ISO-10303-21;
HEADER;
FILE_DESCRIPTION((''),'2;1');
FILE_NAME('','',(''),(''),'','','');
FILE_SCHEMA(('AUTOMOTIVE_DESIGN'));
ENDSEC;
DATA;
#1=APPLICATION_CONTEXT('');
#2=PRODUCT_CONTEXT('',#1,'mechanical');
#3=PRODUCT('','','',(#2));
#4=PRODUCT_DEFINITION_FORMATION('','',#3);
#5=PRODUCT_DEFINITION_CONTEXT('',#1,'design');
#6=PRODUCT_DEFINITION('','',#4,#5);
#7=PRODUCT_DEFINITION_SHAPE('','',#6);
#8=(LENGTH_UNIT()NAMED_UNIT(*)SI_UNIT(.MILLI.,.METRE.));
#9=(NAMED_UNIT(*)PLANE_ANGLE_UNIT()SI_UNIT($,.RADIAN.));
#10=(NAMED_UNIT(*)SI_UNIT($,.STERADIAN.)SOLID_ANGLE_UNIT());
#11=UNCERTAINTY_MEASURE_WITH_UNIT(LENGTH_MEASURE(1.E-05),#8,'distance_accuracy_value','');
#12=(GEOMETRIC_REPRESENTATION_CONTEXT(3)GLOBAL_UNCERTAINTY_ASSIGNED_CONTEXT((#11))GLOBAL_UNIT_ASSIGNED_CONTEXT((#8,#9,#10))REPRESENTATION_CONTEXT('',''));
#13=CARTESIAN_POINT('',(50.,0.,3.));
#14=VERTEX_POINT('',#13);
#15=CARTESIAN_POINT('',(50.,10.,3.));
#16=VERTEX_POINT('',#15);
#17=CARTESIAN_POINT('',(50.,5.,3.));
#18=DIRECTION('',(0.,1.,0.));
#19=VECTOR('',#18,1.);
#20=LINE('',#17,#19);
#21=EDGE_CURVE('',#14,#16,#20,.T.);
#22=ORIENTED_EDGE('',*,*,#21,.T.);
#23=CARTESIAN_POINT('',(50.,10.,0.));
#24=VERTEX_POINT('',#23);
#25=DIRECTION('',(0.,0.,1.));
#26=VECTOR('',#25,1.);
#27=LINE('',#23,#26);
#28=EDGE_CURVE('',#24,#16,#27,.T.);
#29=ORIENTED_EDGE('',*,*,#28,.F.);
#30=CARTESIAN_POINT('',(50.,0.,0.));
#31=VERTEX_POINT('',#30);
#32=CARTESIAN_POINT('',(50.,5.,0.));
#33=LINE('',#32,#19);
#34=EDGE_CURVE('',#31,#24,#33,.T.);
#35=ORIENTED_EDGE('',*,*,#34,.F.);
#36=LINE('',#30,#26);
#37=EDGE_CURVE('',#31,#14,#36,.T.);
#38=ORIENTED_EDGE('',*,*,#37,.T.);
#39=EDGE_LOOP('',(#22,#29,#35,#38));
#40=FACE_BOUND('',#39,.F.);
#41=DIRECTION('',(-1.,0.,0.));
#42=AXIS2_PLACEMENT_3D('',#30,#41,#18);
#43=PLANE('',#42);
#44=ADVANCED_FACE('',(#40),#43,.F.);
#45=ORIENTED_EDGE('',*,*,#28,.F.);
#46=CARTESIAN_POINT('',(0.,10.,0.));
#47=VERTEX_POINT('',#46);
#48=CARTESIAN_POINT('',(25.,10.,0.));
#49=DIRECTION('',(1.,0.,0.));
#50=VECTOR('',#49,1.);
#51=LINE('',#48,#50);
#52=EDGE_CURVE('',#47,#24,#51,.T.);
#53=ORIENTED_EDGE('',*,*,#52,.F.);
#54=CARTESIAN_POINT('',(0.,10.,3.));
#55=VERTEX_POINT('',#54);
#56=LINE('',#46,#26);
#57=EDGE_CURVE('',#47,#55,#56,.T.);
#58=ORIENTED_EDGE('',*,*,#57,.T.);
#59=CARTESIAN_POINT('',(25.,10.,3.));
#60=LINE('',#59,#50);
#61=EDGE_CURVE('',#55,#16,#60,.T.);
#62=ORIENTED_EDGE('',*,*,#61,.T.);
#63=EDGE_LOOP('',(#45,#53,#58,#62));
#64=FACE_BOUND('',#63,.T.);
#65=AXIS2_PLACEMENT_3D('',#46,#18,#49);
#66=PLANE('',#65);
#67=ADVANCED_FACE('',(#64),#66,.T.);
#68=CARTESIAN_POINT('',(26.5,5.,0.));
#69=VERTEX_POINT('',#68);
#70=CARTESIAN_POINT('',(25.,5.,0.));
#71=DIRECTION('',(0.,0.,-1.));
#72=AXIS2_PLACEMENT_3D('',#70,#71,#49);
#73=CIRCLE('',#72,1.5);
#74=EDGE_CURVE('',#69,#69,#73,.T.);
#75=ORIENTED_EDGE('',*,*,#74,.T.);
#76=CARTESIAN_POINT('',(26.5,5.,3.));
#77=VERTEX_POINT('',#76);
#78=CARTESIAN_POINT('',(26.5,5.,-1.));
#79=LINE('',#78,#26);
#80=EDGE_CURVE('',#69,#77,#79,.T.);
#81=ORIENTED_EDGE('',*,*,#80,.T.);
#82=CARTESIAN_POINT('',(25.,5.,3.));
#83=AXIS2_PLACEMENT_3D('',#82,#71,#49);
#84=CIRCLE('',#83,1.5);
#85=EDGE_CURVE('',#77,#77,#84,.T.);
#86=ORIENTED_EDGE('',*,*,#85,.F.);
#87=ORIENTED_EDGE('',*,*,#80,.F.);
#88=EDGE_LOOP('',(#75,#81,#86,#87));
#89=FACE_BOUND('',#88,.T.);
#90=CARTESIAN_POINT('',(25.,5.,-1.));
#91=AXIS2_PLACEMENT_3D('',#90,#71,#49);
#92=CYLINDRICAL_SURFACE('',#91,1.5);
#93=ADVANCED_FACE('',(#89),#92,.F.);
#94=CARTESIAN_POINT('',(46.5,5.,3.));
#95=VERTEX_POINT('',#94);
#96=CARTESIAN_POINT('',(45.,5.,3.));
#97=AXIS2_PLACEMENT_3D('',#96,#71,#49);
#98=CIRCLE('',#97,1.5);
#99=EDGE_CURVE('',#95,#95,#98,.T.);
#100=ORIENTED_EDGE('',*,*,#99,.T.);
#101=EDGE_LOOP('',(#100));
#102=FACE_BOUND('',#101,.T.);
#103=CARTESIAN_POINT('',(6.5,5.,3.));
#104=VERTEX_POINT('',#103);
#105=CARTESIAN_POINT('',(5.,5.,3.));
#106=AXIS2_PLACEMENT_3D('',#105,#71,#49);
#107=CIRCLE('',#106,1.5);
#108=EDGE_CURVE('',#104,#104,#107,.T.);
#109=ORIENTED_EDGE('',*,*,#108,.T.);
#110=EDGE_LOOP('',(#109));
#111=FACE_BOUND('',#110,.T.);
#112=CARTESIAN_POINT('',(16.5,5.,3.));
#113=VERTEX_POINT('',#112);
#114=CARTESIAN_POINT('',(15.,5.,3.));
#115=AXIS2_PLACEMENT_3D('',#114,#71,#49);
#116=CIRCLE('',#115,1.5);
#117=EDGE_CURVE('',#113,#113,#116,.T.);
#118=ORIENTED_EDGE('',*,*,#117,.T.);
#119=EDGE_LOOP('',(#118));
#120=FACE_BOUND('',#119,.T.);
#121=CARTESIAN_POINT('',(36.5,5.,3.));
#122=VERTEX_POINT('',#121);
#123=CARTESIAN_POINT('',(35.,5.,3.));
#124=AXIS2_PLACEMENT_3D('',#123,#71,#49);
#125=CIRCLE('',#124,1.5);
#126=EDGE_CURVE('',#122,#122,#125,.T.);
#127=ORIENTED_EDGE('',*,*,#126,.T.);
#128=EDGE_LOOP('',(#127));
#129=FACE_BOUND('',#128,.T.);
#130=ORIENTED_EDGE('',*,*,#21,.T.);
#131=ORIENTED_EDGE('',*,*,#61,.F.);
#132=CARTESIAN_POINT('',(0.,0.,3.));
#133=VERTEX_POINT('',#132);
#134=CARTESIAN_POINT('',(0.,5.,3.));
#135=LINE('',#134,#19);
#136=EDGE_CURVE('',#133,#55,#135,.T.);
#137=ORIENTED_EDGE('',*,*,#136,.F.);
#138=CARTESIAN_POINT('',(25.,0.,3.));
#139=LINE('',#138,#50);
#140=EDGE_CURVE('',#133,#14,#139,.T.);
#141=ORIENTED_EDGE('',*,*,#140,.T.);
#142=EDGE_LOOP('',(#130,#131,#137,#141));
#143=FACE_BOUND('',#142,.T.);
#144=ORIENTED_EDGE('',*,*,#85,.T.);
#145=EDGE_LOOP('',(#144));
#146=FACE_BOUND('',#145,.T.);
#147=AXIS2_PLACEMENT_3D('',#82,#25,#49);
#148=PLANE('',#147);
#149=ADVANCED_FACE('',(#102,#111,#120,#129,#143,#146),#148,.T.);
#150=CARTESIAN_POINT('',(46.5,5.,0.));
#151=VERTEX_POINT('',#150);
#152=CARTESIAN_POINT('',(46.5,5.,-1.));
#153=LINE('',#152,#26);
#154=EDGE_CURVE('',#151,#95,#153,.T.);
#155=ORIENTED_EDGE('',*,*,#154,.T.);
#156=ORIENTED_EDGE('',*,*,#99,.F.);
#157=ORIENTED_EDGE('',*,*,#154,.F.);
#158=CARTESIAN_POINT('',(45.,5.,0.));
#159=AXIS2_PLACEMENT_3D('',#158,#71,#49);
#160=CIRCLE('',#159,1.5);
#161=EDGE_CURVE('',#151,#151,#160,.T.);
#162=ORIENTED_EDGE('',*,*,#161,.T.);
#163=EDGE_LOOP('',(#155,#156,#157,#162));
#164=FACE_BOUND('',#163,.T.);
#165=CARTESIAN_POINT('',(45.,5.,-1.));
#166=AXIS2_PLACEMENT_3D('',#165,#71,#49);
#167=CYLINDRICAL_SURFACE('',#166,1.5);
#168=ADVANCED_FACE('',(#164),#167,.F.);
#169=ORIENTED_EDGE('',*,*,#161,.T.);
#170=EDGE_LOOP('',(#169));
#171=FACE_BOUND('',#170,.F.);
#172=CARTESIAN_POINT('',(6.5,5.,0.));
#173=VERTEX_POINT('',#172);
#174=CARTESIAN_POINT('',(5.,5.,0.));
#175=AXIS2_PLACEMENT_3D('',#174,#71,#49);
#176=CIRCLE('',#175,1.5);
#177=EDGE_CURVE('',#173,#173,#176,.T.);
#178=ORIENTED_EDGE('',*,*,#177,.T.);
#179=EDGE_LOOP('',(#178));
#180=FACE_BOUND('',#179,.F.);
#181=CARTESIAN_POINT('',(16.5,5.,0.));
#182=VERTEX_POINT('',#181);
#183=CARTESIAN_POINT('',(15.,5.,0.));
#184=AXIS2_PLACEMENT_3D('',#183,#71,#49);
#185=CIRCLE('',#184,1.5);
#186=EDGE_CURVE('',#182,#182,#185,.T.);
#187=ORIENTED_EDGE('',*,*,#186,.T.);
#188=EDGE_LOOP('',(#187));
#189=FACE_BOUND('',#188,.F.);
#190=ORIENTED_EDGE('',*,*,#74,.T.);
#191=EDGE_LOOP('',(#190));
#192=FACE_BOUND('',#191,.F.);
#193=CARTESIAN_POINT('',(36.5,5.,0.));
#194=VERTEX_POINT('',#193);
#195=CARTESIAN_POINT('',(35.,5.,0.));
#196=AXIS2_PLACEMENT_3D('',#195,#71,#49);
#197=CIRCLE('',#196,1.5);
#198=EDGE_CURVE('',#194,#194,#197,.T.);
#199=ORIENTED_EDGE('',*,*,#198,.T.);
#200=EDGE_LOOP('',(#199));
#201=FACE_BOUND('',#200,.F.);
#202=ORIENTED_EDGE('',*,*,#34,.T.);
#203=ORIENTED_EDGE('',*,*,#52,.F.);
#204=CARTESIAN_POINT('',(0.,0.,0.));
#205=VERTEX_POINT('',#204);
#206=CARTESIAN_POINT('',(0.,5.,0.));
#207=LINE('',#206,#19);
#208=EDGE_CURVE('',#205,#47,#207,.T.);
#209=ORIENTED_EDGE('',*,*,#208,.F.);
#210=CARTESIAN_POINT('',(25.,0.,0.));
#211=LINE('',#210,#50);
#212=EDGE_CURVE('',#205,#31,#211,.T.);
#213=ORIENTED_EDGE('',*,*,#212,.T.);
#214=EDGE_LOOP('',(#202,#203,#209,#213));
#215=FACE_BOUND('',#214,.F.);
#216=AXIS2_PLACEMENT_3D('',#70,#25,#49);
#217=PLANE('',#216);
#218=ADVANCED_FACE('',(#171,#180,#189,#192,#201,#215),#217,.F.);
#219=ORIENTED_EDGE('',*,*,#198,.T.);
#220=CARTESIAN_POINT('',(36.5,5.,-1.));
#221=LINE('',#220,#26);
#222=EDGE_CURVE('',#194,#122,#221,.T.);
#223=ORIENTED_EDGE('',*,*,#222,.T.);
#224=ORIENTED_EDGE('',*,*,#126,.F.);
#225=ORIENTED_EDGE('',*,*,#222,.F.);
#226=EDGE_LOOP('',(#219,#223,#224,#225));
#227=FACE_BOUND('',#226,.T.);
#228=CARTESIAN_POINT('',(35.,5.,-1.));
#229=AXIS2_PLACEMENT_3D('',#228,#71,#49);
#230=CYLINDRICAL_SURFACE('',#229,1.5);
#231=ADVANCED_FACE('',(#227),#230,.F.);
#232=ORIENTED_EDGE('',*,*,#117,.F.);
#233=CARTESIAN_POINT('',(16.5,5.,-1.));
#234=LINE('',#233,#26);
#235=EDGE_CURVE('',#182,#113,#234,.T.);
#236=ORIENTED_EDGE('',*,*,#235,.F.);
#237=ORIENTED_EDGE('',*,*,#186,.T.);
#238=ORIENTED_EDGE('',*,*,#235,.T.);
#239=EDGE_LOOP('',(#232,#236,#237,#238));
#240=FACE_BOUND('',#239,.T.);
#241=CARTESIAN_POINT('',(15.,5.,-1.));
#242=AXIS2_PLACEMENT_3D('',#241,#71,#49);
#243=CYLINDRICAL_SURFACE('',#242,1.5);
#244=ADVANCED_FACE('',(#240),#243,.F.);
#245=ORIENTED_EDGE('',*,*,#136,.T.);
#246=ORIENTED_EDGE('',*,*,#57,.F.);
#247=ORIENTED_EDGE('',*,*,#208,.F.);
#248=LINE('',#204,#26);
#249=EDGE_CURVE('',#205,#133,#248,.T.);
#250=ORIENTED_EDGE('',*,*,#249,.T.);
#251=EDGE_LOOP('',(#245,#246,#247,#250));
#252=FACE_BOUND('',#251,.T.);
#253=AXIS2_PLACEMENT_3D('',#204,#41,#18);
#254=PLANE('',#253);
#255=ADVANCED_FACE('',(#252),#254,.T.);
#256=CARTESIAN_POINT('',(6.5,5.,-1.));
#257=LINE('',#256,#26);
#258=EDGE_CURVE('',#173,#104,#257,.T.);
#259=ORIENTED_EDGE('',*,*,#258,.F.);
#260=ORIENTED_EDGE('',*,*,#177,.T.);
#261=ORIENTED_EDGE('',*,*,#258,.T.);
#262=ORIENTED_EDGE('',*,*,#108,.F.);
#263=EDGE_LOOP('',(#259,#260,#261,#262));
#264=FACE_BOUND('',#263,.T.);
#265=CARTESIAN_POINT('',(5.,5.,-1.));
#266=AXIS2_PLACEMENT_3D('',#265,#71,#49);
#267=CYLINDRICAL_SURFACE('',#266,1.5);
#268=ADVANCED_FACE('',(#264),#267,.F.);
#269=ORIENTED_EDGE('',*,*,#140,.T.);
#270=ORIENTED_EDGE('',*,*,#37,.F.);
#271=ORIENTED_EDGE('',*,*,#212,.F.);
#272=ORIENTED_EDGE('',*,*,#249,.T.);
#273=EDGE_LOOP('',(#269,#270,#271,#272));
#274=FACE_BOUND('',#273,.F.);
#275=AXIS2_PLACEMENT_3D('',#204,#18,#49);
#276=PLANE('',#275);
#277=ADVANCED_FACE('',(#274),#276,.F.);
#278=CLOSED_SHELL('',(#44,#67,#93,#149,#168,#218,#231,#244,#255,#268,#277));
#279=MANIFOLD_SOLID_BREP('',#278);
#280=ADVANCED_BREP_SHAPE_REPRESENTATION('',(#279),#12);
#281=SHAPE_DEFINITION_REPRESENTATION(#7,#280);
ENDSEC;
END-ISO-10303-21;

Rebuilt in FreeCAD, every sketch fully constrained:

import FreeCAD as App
import Part
import Sketcher

doc = App.newDocument("Part")
body = doc.addObject("PartDesign::Body", "Body")

# Sketch on XY plane
sketch1 = body.newObject("Sketcher::SketchObject", "Sketch")
sketch1.AttachmentSupport = (doc.getObject("XY_Plane"), [""])
sketch1.MapMode = "FlatFace"
sketch1.AttachmentOffset = App.Placement(App.Vector(0, 0, -1), App.Rotation())
sketch1.addGeometry(Part.Circle(App.Vector(45, 5, 0), App.Vector(0, 0, 1), 1.5), False)
sketch1.addConstraint([
    Sketcher.Constraint("Diameter", 0, 3.0),
    Sketcher.Constraint("DistanceX", -1, 1, 0, 3, 45.0),
    Sketcher.Constraint("DistanceY", -1, 1, 0, 3, 5.0),
])
pad1 = body.newObject("PartDesign::Pad", "Pad")
pad1.Profile = sketch1
pad1.Length = 10
body2 = doc.addObject("PartDesign::Body", "Body001")

# Sketch on XY plane
sketch2 = body2.newObject("Sketcher::SketchObject", "Sketch001")
sketch2.AttachmentSupport = (doc.getObject("XY_Plane001"), [""])
sketch2.MapMode = "FlatFace"
sketch2.AttachmentOffset = App.Placement(App.Vector(0, 0, -1), App.Rotation())
sketch2.addGeometry(Part.Circle(App.Vector(35, 5, 0), App.Vector(0, 0, 1), 1.5), False)
sketch2.addConstraint([
    Sketcher.Constraint("Diameter", 0, 3.0),
    Sketcher.Constraint("DistanceX", -1, 1, 0, 3, 35.0),
    Sketcher.Constraint("DistanceY", -1, 1, 0, 3, 5.0),
])
pad2 = body2.newObject("PartDesign::Pad", "Pad001")
pad2.Profile = sketch2
pad2.Length = 10
body3 = doc.addObject("PartDesign::Body", "Body002")

# Sketch on XY plane
sketch3 = body3.newObject("Sketcher::SketchObject", "Sketch002")
sketch3.AttachmentSupport = (doc.getObject("XY_Plane002"), [""])
sketch3.MapMode = "FlatFace"
sketch3.AttachmentOffset = App.Placement(App.Vector(0, 0, -1), App.Rotation())
sketch3.addGeometry(Part.Circle(App.Vector(25, 5, 0), App.Vector(0, 0, 1), 1.5), False)
sketch3.addConstraint([
    Sketcher.Constraint("Diameter", 0, 3.0),
    Sketcher.Constraint("DistanceX", -1, 1, 0, 3, 25.0),
    Sketcher.Constraint("DistanceY", -1, 1, 0, 3, 5.0),
])
pad3 = body3.newObject("PartDesign::Pad", "Pad002")
pad3.Profile = sketch3
pad3.Length = 10
body4 = doc.addObject("PartDesign::Body", "Body003")

# Sketch on XY plane
sketch4 = body4.newObject("Sketcher::SketchObject", "Sketch003")
sketch4.AttachmentSupport = (doc.getObject("XY_Plane003"), [""])
sketch4.MapMode = "FlatFace"
sketch4.AttachmentOffset = App.Placement(App.Vector(0, 0, -1), App.Rotation())
sketch4.addGeometry(Part.Circle(App.Vector(15, 5, 0), App.Vector(0, 0, 1), 1.5), False)
sketch4.addConstraint([
    Sketcher.Constraint("Diameter", 0, 3.0),
    Sketcher.Constraint("DistanceX", -1, 1, 0, 3, 15.0),
    Sketcher.Constraint("DistanceY", -1, 1, 0, 3, 5.0),
])
pad4 = body4.newObject("PartDesign::Pad", "Pad003")
pad4.Profile = sketch4
pad4.Length = 10
body5 = doc.addObject("PartDesign::Body", "Body004")

# Sketch on XY plane
sketch5 = body5.newObject("Sketcher::SketchObject", "Sketch004")
sketch5.AttachmentSupport = (doc.getObject("XY_Plane004"), [""])
sketch5.MapMode = "FlatFace"
sketch5.AttachmentOffset = App.Placement(App.Vector(0, 0, -1), App.Rotation())
sketch5.addGeometry(Part.Circle(App.Vector(5, 5, 0), App.Vector(0, 0, 1), 1.5), False)
sketch5.addConstraint([
    Sketcher.Constraint("Diameter", 0, 3.0),
    Sketcher.Constraint("DistanceX", -1, 1, 0, 3, 5.0),
    Sketcher.Constraint("DistanceY", -1, 1, 0, 3, 5.0),
])
pad5 = body5.newObject("PartDesign::Pad", "Pad004")
pad5.Profile = sketch5
pad5.Length = 10
body6 = doc.addObject("PartDesign::Body", "Body005")

# Sketch on XY plane
sketch6 = body6.newObject("Sketcher::SketchObject", "Sketch005")
sketch6.AttachmentSupport = (doc.getObject("XY_Plane005"), [""])
sketch6.MapMode = "FlatFace"
sketch6.addGeometry([
    Part.LineSegment(App.Vector(0, 10, 0), App.Vector(0, 0, 0)),
    Part.LineSegment(App.Vector(0, 0, 0), App.Vector(50, 0, 0)),
    Part.LineSegment(App.Vector(50, 0, 0), App.Vector(50, 10, 0)),
    Part.LineSegment(App.Vector(50, 10, 0), App.Vector(0, 10, 0)),
], False)
sketch6.addConstraint([
    Sketcher.Constraint("Coincident", 0, 2, 1, 1),
    Sketcher.Constraint("Coincident", 1, 2, 2, 1),
    Sketcher.Constraint("Coincident", 2, 2, 3, 1),
    Sketcher.Constraint("Coincident", 3, 2, 0, 1),
    Sketcher.Constraint("Vertical", 0),
    Sketcher.Constraint("Horizontal", 1),
    Sketcher.Constraint("Vertical", 2),
    Sketcher.Constraint("Horizontal", 3),
    Sketcher.Constraint("Coincident", 0, 2, -1, 1),
    Sketcher.Constraint("DistanceX", 1, 1, 1, 2, 50.0),
    Sketcher.Constraint("DistanceY", 0, 2, 0, 1, 10.0),
])
pad6 = body6.newObject("PartDesign::Pad", "Pad005")
pad6.Profile = sketch6
pad6.Length = 3
doc.recompute()

boolean = body6.newObject("PartDesign::Boolean", "Boolean")
boolean.Type = "Cut"
boolean.addObjects([body5])
doc.recompute()

boolean2 = body6.newObject("PartDesign::Boolean", "Boolean001")
boolean2.Type = "Cut"
boolean2.addObjects([body4])
doc.recompute()

boolean3 = body6.newObject("PartDesign::Boolean", "Boolean002")
boolean3.Type = "Cut"
boolean3.addObjects([body3])
doc.recompute()

boolean4 = body6.newObject("PartDesign::Boolean", "Boolean003")
boolean4.Type = "Cut"
boolean4.addObjects([body2])
doc.recompute()

boolean5 = body6.newObject("PartDesign::Boolean", "Boolean004")
boolean5.Type = "Cut"
boolean5.addObjects([body])

doc.recompute()
